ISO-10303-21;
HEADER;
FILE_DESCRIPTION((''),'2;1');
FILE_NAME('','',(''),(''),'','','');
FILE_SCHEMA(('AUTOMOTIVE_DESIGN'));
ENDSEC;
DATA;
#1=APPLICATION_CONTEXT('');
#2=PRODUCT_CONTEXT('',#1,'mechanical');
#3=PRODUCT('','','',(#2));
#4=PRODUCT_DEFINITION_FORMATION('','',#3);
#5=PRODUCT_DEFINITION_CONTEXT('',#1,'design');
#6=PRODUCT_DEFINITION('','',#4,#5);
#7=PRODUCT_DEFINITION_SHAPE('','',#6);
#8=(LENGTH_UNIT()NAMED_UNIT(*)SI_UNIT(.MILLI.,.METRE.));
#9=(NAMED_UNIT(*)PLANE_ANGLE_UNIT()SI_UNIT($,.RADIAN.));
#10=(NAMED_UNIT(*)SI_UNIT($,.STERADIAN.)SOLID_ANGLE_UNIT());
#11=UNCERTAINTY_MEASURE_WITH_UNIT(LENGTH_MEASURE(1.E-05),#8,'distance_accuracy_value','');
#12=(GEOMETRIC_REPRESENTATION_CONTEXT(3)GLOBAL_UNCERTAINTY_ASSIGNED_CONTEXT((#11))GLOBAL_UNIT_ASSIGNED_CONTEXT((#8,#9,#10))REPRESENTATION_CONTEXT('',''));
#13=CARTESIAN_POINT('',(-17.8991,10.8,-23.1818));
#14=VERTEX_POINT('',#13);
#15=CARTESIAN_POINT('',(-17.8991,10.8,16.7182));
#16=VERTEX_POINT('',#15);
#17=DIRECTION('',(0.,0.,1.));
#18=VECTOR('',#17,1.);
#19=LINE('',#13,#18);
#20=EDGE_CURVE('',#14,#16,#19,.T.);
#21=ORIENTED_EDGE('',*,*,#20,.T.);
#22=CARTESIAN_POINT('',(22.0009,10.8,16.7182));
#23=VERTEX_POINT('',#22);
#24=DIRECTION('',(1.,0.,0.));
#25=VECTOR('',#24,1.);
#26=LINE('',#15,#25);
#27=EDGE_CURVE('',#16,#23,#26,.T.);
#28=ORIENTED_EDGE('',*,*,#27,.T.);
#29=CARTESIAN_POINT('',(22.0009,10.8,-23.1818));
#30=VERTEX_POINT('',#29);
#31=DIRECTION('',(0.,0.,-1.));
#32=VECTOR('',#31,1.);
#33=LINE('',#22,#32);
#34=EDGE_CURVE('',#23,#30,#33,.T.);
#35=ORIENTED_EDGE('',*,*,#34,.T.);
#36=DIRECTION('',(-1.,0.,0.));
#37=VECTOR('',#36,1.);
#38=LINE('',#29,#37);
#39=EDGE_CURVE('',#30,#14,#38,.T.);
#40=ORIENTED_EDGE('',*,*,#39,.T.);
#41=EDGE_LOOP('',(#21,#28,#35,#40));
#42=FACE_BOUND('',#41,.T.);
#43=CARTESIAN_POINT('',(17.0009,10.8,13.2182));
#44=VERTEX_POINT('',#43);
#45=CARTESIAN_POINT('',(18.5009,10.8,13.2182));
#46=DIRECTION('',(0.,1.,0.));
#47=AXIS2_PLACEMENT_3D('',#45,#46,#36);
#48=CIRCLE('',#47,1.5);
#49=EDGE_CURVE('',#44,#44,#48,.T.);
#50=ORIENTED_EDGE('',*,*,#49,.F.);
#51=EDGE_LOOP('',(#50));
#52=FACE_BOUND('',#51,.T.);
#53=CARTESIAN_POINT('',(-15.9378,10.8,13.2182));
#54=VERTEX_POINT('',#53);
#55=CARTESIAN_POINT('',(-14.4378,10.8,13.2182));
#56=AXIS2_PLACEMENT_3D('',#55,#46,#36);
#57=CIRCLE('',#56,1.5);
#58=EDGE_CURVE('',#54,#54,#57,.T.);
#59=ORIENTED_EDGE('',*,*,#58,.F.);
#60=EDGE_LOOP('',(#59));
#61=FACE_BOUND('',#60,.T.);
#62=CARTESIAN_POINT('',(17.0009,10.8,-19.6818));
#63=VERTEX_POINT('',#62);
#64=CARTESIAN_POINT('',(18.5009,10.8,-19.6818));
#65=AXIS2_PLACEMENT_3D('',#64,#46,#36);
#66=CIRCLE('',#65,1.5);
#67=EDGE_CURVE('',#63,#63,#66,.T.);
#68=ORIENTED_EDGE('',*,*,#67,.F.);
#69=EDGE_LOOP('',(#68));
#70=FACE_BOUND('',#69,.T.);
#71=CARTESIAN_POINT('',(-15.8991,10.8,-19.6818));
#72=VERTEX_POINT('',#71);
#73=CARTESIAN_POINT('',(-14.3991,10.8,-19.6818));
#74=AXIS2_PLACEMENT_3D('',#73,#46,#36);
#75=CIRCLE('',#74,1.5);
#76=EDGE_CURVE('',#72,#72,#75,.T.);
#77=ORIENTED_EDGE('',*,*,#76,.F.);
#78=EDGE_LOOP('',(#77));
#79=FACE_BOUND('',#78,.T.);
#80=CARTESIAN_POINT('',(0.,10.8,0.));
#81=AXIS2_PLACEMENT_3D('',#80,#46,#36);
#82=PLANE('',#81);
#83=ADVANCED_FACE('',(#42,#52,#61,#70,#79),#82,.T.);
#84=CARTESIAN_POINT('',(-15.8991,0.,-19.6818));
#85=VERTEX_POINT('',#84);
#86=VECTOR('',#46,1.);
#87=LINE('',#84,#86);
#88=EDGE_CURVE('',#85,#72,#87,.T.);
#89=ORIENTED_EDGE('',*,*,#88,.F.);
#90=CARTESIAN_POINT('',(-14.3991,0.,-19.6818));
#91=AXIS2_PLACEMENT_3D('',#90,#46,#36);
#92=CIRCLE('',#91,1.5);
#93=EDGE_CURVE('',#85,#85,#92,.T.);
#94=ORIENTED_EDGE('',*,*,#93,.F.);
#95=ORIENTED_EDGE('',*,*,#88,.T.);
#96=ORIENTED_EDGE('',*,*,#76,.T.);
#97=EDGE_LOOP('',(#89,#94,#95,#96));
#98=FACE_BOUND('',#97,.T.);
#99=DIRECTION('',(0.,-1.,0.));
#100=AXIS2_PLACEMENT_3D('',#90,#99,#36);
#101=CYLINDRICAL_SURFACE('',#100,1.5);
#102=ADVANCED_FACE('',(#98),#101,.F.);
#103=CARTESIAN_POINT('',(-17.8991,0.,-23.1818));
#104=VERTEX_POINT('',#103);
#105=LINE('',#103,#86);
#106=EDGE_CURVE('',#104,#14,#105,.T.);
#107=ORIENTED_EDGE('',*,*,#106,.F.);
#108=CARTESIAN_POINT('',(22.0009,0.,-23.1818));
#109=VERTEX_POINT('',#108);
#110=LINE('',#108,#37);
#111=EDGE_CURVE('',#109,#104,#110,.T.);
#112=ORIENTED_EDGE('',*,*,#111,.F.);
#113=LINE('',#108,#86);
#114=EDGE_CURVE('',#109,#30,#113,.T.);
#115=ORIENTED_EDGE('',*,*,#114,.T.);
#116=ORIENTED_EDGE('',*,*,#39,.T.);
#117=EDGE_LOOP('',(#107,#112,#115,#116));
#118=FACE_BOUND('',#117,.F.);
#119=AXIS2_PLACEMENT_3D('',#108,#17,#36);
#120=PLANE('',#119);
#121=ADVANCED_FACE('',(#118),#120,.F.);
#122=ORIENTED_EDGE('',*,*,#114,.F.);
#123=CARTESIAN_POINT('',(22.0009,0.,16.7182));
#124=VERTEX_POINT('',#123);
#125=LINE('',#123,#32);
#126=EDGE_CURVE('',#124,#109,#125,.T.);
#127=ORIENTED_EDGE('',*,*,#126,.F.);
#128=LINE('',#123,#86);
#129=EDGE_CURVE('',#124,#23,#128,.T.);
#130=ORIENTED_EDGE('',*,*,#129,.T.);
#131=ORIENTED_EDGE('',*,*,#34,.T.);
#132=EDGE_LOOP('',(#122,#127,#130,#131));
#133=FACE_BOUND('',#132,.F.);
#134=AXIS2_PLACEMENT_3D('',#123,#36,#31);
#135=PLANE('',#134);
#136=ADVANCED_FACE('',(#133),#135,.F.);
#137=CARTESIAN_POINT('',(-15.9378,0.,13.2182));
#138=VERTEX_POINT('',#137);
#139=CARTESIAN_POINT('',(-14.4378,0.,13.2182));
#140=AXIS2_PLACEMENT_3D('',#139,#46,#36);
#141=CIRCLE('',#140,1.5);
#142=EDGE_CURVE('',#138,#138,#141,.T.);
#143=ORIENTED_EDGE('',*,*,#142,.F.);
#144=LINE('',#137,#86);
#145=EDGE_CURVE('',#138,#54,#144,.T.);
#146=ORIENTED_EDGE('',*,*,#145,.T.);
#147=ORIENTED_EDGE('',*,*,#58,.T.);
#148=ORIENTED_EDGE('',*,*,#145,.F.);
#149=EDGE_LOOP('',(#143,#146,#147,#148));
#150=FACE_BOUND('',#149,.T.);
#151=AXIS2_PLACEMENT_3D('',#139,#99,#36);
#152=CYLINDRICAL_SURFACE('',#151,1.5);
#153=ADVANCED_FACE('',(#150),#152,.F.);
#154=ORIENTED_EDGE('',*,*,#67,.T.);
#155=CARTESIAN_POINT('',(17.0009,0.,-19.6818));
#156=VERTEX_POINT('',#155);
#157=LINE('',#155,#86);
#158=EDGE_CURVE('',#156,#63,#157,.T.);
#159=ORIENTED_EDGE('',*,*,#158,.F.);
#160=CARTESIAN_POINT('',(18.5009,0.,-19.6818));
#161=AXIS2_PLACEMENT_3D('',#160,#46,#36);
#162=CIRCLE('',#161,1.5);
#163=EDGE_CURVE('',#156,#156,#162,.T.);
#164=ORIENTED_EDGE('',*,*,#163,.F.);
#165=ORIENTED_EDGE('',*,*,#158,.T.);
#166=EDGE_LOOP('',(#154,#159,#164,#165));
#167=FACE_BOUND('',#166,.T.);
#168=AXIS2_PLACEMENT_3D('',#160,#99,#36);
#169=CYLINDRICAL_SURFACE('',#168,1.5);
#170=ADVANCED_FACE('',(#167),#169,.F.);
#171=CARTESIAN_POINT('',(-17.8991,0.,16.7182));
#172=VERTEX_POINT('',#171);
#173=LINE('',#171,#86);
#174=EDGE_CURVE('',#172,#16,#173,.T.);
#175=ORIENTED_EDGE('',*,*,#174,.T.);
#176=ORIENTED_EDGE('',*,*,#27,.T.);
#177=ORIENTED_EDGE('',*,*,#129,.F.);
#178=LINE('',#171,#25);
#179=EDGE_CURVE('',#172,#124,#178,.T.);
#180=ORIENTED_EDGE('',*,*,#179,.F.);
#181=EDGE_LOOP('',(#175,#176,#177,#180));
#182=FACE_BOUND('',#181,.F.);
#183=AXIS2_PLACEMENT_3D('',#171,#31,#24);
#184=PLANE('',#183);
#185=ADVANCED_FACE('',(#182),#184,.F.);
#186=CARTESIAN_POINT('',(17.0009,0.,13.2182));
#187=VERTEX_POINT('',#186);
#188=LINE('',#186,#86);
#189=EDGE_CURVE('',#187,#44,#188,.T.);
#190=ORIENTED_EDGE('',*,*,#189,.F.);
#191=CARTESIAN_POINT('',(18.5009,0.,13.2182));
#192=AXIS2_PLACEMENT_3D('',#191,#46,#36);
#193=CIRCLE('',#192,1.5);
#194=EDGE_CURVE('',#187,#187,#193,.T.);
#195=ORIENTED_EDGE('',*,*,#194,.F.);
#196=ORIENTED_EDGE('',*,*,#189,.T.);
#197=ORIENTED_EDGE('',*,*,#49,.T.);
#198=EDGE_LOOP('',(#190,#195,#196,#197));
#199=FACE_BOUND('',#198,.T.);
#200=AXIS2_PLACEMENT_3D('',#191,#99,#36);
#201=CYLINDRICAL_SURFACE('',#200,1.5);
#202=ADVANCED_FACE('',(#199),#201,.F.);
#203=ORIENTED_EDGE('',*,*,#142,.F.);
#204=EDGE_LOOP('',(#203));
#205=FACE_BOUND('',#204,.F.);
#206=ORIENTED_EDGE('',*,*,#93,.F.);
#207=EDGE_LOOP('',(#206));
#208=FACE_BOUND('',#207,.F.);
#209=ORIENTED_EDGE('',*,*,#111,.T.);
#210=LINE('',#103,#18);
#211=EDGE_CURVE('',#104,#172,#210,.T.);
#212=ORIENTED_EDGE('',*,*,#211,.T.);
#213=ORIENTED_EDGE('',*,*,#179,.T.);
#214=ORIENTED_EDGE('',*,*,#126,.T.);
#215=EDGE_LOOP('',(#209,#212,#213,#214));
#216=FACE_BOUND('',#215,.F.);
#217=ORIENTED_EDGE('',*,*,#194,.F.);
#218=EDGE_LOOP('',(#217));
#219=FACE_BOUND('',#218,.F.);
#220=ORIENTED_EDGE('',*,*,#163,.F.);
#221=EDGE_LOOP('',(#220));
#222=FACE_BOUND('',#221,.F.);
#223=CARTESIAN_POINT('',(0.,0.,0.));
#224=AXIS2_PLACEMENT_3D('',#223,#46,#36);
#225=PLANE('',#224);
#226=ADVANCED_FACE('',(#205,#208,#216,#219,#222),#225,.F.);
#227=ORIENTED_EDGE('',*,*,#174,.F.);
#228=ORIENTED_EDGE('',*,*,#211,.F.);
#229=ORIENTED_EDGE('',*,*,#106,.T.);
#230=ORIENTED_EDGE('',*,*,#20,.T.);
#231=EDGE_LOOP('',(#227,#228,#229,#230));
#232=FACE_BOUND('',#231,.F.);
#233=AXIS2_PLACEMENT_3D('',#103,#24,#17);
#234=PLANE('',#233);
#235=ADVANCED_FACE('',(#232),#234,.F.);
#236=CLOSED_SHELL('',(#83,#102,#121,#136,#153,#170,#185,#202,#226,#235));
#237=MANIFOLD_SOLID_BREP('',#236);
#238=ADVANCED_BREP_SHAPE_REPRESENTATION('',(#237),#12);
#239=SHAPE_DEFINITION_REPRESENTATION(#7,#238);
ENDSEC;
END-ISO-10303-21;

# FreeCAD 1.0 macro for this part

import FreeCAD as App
import Part
import Sketcher
from FreeCAD import Vector
Q = App.Units.Quantity


def add_polygon(sketch, points):
    """Adds a closed chain of lines whose ends are joined by coincident constraints."""
    first, n = sketch.GeometryCount, len(points)
    for a, b in zip(points, points[1:] + points[:1]):
        sketch.addGeometry(Part.LineSegment(App.Vector(*a, 0), App.Vector(*b, 0)), False)
    for i in range(n):
        sketch.addConstraint(Sketcher.Constraint("Coincident", first + i, 2, first + (i + 1) % n, 1))

doc = App.newDocument("Part")
params = doc.addObject("Spreadsheet::Sheet", "Params")
for row, (alias, value) in enumerate([
    ("sketch1_diameter", "3 mm"),
    ("sketch1_width", "39.9 mm"),
    ("pad1_length", "10.8 mm"),
], start=1):
    params.set(f"A{row}", alias)
    params.set(f"B{row}", "=" + value)
    params.setAlias(f"B{row}", alias)

body = doc.addObject("PartDesign::Body", "Body")

# Sketch on XZ plane
sketch1 = body.newObject("Sketcher::SketchObject", "Sketch")
sketch1.AttachmentSupport = (doc.getObject("XZ_Plane"), [""])
sketch1.MapMode = "FlatFace"
add_polygon(sketch1, [(-17.8991, 16.7182), (22.0009, 16.7182), (22.0009, -23.1818), (-17.8991, -23.1818)])  # lines 0-3
sketch1.addGeometry(Part.Circle(Vector(18.5009, -19.6818, 0), Vector(0, 0, 1), 1.5), False)  # 4
sketch1.addGeometry(Part.Circle(Vector(-14.3991, -19.6818, 0), Vector(0, 0, 1), 1.5), False)  # 5
sketch1.addGeometry(Part.Circle(Vector(18.5009, 13.2182, 0), Vector(0, 0, 1), 1.5), False)  # 6
sketch1.addGeometry(Part.Circle(Vector(-14.4378, 13.2182, 0), Vector(0, 0, 1), 1.5), False)  # 7
sketch1.addConstraint(Sketcher.Constraint("Horizontal", 0))
sketch1.addConstraint(Sketcher.Constraint("Vertical", 1))
sketch1.addConstraint(Sketcher.Constraint("Horizontal", 2))
sketch1.addConstraint(Sketcher.Constraint("Vertical", 3))
sketch1.addConstraint(Sketcher.Constraint("Equal", 4, 5))
sketch1.addConstraint(Sketcher.Constraint("Equal", 5, 6))
sketch1.addConstraint(Sketcher.Constraint("Equal", 6, 7))
sketch1.addConstraint(Sketcher.Constraint("Horizontal", 4, 3, 5, 3))
sketch1.addConstraint(Sketcher.Constraint("Horizontal", 6, 3, 7, 3))
sketch1.addConstraint(Sketcher.Constraint("Vertical", 4, 3, 6, 3))
sketch1.addConstraint(Sketcher.Constraint("Equal", 2, 1))
sketch1.addConstraint(Sketcher.Constraint("Diameter", 4, Q("3 mm")))
sketch1.addConstraint(Sketcher.Constraint("DistanceX", 0, 1, 0, 2, Q("39.9 mm")))
sketch1.addConstraint(Sketcher.Constraint("DistanceX", 6, 3, 0, 2, Q("3.5 mm")))
sketch1.addConstraint(Sketcher.Constraint("DistanceY", 6, 3, 0, 2, Q("3.5 mm")))
sketch1.addConstraint(Sketcher.Constraint("DistanceY", 1, 2, 4, 3, Q("3.5 mm")))
sketch1.addConstraint(Sketcher.Constraint("DistanceX", 2, 2, 5, 3, Q("3.5 mm")))
sketch1.addConstraint(Sketcher.Constraint("DistanceX", -1, 1, 4, 3, Q("18.501 mm")))
sketch1.addConstraint(Sketcher.Constraint("DistanceY", 4, 3, -1, 1, Q("19.6818 mm")))
sketch1.addConstraint(Sketcher.Constraint("DistanceX", 7, 3, -1, 1, Q("14.4378 mm")))
sketch1.setExpression("Constraints[15]", "Params.sketch1_diameter")
sketch1.setExpression("Constraints[16]", "Params.sketch1_width")
pad1 = body.newObject("PartDesign::Pad", "Pad")
pad1.Profile = sketch1
pad1.setExpression("Length", "Params.pad1_length")
pad1.Reversed = True

doc.recompute()
